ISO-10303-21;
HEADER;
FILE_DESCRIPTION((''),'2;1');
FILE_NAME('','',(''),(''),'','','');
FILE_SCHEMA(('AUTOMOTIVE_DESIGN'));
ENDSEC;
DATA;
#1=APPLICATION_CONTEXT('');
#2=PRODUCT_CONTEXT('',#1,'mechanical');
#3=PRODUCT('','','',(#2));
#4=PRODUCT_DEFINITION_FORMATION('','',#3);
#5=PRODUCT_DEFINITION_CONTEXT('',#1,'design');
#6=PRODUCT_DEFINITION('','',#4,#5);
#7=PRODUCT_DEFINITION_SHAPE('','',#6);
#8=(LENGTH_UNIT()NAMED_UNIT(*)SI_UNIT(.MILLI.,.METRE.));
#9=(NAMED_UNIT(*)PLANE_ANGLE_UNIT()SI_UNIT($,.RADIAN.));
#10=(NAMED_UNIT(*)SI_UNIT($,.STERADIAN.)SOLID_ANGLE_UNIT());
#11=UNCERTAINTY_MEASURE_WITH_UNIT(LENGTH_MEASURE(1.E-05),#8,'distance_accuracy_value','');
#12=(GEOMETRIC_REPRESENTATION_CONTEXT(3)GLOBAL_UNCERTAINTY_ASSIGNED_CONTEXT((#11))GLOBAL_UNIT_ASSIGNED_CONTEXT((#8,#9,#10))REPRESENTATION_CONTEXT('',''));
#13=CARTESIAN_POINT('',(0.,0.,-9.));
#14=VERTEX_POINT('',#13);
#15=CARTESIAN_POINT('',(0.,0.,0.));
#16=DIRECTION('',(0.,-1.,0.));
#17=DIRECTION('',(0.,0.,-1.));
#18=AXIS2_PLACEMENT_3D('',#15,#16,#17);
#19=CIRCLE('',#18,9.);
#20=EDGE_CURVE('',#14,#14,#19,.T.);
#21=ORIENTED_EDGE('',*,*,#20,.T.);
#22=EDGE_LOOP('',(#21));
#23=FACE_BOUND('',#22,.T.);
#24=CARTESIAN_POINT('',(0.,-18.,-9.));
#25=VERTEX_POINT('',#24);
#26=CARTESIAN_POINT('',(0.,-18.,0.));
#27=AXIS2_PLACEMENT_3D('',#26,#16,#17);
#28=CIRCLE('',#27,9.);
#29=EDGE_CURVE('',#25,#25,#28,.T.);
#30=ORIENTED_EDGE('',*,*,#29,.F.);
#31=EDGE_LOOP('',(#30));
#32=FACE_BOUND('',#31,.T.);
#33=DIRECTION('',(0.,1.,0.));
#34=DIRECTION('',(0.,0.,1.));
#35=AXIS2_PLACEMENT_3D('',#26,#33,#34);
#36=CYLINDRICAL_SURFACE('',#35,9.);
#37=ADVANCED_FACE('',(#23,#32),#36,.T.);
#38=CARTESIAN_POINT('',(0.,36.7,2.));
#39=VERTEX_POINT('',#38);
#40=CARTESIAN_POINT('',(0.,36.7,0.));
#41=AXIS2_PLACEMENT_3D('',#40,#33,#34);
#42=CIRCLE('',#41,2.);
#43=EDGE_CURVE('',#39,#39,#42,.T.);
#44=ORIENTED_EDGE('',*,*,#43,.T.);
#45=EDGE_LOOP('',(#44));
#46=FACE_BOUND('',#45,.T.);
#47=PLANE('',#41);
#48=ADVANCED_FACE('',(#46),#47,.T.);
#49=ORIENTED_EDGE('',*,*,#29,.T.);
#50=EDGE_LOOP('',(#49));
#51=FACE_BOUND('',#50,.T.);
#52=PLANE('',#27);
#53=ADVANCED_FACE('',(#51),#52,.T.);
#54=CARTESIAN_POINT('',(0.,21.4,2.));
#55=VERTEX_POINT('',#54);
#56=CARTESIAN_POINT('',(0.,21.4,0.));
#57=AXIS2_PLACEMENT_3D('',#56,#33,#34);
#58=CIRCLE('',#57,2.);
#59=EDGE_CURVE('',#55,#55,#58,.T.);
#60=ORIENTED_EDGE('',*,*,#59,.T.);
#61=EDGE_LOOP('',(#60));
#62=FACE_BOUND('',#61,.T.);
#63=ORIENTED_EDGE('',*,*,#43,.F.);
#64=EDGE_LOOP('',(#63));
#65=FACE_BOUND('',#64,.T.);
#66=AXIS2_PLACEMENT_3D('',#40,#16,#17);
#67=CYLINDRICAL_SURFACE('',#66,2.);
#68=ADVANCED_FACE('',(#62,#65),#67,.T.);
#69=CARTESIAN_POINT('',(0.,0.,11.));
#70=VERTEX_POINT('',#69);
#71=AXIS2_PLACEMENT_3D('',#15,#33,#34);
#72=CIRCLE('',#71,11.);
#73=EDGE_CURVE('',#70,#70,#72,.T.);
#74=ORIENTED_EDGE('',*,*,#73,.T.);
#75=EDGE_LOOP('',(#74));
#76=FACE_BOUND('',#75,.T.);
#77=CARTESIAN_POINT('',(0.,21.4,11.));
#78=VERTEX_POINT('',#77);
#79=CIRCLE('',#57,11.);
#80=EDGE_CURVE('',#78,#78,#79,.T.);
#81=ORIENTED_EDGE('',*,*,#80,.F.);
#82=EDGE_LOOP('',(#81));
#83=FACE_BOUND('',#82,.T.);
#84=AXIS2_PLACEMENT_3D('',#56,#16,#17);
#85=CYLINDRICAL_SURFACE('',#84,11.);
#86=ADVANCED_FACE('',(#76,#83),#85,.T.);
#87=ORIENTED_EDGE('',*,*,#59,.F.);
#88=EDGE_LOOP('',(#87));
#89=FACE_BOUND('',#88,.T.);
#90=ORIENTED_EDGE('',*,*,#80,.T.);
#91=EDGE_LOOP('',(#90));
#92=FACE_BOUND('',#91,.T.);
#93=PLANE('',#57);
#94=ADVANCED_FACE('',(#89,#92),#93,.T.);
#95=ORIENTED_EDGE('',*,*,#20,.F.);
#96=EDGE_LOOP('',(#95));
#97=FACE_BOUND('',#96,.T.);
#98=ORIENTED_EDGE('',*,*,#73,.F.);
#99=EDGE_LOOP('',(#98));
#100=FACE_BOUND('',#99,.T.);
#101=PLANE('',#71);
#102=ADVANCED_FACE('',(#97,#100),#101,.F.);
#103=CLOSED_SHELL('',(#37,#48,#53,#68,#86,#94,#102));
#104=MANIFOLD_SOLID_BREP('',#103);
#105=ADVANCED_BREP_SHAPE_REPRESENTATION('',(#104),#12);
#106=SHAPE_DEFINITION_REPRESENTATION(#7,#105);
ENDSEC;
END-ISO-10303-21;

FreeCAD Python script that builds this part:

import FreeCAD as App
import Part
import Sketcher
from FreeCAD import Vector
Q = App.Units.Quantity

doc = App.newDocument("Part")
body = doc.addObject("PartDesign::Body", "Body")

# Sketch on XZ plane
sketch1 = body.newObject("Sketcher::SketchObject", "Sketch")
sketch1.AttachmentSupport = (doc.getObject("XZ_Plane"), [""])
sketch1.MapMode = "FlatFace"
sketch1.addGeometry(Part.Circle(Vector(0, 0, 0), Vector(0, 0, 1), 11), False)
sketch1.addConstraint([
    Sketcher.Constraint("Coincident", 0, 3, -1, 1),
    Sketcher.Constraint("Diameter", 0, Q("22 mm")),
])
pad1 = body.newObject("PartDesign::Pad", "Pad")
pad1.Profile = sketch1
pad1.Length = 21.4
pad1.Reversed = True

# Sketch on XZ plane
sketch2 = body.newObject("Sketcher::SketchObject", "Sketch001")
sketch2.AttachmentSupport = (doc.getObject("XZ_Plane"), [""])
sketch2.MapMode = "FlatFace"
sketch2.AttachmentOffset = App.Placement(Vector(0, 0, -21.4), App.Rotation())
sketch2.addGeometry(Part.Circle(Vector(0, 0, 0), Vector(0, 0, 1), 2), False)
sketch2.addConstraint([
    Sketcher.Constraint("Coincident", 0, 3, -1, 1),
    Sketcher.Constraint("Diameter", 0, Q("4 mm")),
])
pad2 = body.newObject("PartDesign::Pad", "Pad001")
pad2.Profile = sketch2
pad2.Length = 15.3
pad2.Reversed = True

# Sketch on XZ plane
sketch3 = body.newObject("Sketcher::SketchObject", "Sketch002")
sketch3.AttachmentSupport = (doc.getObject("XZ_Plane"), [""])
sketch3.MapMode = "FlatFace"
sketch3.addGeometry(Part.Circle(Vector(0, 0, 0), Vector(0, 0, 1), 9), False)
sketch3.addConstraint([
    Sketcher.Constraint("Coincident", 0, 3, -1, 1),
    Sketcher.Constraint("Diameter", 0, Q("18 mm")),
])
pad3 = body.newObject("PartDesign::Pad", "Pad002")
pad3.Profile = sketch3
pad3.Length = 18

doc.recompute()
